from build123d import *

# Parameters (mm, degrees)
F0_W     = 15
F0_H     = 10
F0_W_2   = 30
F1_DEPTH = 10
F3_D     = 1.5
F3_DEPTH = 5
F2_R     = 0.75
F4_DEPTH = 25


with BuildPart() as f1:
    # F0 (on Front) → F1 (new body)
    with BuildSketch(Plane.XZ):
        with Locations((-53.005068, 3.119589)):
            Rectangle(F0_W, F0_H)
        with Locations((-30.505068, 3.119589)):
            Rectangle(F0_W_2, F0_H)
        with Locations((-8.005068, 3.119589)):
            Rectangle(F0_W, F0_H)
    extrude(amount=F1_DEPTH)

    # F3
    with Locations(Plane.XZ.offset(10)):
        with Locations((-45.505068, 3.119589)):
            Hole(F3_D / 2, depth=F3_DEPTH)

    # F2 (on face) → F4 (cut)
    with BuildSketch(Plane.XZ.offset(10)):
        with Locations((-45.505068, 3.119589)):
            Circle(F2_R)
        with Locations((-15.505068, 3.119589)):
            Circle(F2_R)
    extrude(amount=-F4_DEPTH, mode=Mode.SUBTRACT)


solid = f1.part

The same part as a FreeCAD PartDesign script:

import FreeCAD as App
import Part
import Sketcher
from FreeCAD import Vector

doc = App.newDocument("Part")
body = doc.addObject("PartDesign::Body", "Body")

sketch1 = body.newObject("Sketcher::SketchObject", "Sketch")
sketch1.AttachmentSupport = (doc.getObject("XZ_Plane"), [""])
sketch1.MapMode = "FlatFace"
sketch1.addGeometry([
    Part.LineSegment(Vector(-61, 8, 0), Vector(-61, -2, 0)),
    Part.LineSegment(Vector(-61, -2, 0), Vector(-1, -2, 0)),
    Part.LineSegment(Vector(-1, -2, 0), Vector(-1, 8, 0)),
    Part.LineSegment(Vector(-1, 8, 0), Vector(-61, 8, 0)),
], False)
sketch1.addConstraint([
    Sketcher.Constraint("Coincident", 0, 2, 1, 1),
    Sketcher.Constraint("Coincident", 1, 2, 2, 1),
    Sketcher.Constraint("Coincident", 2, 2, 3, 1),
    Sketcher.Constraint("Coincident", 3, 2, 0, 1),
    Sketcher.Constraint("Vertical", 0),
    Sketcher.Constraint("Horizontal", 1),
    Sketcher.Constraint("Vertical", 2),
    Sketcher.Constraint("Horizontal", 3),
    Sketcher.Constraint("DistanceX", 1, 1, 1, 2, 60.0),
    Sketcher.Constraint("DistanceY", 0, 2, 0, 1, 10.0),
    Sketcher.Constraint("DistanceY", 0, 2, -1, 1, 1.880411),
    Sketcher.Constraint("DistanceX", 0, 2, -1, 1, 60.505068),
])
pad1 = body.newObject("PartDesign::Pad", "Pad")
pad1.Profile = sketch1
pad1.Length = 10

sketch2 = body.newObject("Sketcher::SketchObject", "Sketch001")
sketch2.AttachmentSupport = (doc.getObject("XZ_Plane"), [""])
sketch2.MapMode = "FlatFace"
sketch2.AttachmentOffset = App.Placement(Vector(0, 0, 10), App.Rotation())
sketch2.addGeometry(Part.Circle(Vector(-45.5, 3.1, 0), Vector(0, 0, 1), 0.8), False)
sketch2.addConstraint([
    Sketcher.Constraint("Diameter", 0, 1.5),
    Sketcher.Constraint("DistanceY", -1, 1, 0, 3, 3.119589),
    Sketcher.Constraint("DistanceX", 0, 3, -1, 1, 45.505068),
])
doc.recompute()
hole = body.newObject("PartDesign::Hole", "Hole")
hole.Profile = sketch2
hole.ThreadType = "None"
hole.Diameter = 1.5
hole.DepthType = "Dimension"
hole.Depth = 5
hole.DrillPoint = "Flat"

sketch3 = body.newObject("Sketcher::SketchObject", "Sketch002")
sketch3.AttachmentSupport = (doc.getObject("XZ_Plane"), [""])
sketch3.MapMode = "FlatFace"
sketch3.AttachmentOffset = App.Placement(Vector(0, 0, 10), App.Rotation())
sketch3.addGeometry([
    Part.Circle(Vector(-45.5, 3.1, 0), Vector(0, 0, 1), 0.8),
    Part.Circle(Vector(-15.5, 3.1, 0), Vector(0, 0, 1), 0.8),
], False)
sketch3.addConstraint([
    Sketcher.Constraint("Equal", 0, 1),
    Sketcher.Constraint("Horizontal", 0, 3, 1, 3),
    Sketcher.Constraint("Diameter", 0, 1.5),
    Sketcher.Constraint("DistanceX", 0, 3, 1, 3, 30.0),
    Sketcher.Constraint("DistanceY", -1, 1, 0, 3, 3.119589),
    Sketcher.Constraint("DistanceX", 0, 3, -1, 1, 45.505068),
])
pocket1 = body.newObject("PartDesign::Pocket", "Pocket")
pocket1.Profile = sketch3
pocket1.Length = 25

doc.recompute()
